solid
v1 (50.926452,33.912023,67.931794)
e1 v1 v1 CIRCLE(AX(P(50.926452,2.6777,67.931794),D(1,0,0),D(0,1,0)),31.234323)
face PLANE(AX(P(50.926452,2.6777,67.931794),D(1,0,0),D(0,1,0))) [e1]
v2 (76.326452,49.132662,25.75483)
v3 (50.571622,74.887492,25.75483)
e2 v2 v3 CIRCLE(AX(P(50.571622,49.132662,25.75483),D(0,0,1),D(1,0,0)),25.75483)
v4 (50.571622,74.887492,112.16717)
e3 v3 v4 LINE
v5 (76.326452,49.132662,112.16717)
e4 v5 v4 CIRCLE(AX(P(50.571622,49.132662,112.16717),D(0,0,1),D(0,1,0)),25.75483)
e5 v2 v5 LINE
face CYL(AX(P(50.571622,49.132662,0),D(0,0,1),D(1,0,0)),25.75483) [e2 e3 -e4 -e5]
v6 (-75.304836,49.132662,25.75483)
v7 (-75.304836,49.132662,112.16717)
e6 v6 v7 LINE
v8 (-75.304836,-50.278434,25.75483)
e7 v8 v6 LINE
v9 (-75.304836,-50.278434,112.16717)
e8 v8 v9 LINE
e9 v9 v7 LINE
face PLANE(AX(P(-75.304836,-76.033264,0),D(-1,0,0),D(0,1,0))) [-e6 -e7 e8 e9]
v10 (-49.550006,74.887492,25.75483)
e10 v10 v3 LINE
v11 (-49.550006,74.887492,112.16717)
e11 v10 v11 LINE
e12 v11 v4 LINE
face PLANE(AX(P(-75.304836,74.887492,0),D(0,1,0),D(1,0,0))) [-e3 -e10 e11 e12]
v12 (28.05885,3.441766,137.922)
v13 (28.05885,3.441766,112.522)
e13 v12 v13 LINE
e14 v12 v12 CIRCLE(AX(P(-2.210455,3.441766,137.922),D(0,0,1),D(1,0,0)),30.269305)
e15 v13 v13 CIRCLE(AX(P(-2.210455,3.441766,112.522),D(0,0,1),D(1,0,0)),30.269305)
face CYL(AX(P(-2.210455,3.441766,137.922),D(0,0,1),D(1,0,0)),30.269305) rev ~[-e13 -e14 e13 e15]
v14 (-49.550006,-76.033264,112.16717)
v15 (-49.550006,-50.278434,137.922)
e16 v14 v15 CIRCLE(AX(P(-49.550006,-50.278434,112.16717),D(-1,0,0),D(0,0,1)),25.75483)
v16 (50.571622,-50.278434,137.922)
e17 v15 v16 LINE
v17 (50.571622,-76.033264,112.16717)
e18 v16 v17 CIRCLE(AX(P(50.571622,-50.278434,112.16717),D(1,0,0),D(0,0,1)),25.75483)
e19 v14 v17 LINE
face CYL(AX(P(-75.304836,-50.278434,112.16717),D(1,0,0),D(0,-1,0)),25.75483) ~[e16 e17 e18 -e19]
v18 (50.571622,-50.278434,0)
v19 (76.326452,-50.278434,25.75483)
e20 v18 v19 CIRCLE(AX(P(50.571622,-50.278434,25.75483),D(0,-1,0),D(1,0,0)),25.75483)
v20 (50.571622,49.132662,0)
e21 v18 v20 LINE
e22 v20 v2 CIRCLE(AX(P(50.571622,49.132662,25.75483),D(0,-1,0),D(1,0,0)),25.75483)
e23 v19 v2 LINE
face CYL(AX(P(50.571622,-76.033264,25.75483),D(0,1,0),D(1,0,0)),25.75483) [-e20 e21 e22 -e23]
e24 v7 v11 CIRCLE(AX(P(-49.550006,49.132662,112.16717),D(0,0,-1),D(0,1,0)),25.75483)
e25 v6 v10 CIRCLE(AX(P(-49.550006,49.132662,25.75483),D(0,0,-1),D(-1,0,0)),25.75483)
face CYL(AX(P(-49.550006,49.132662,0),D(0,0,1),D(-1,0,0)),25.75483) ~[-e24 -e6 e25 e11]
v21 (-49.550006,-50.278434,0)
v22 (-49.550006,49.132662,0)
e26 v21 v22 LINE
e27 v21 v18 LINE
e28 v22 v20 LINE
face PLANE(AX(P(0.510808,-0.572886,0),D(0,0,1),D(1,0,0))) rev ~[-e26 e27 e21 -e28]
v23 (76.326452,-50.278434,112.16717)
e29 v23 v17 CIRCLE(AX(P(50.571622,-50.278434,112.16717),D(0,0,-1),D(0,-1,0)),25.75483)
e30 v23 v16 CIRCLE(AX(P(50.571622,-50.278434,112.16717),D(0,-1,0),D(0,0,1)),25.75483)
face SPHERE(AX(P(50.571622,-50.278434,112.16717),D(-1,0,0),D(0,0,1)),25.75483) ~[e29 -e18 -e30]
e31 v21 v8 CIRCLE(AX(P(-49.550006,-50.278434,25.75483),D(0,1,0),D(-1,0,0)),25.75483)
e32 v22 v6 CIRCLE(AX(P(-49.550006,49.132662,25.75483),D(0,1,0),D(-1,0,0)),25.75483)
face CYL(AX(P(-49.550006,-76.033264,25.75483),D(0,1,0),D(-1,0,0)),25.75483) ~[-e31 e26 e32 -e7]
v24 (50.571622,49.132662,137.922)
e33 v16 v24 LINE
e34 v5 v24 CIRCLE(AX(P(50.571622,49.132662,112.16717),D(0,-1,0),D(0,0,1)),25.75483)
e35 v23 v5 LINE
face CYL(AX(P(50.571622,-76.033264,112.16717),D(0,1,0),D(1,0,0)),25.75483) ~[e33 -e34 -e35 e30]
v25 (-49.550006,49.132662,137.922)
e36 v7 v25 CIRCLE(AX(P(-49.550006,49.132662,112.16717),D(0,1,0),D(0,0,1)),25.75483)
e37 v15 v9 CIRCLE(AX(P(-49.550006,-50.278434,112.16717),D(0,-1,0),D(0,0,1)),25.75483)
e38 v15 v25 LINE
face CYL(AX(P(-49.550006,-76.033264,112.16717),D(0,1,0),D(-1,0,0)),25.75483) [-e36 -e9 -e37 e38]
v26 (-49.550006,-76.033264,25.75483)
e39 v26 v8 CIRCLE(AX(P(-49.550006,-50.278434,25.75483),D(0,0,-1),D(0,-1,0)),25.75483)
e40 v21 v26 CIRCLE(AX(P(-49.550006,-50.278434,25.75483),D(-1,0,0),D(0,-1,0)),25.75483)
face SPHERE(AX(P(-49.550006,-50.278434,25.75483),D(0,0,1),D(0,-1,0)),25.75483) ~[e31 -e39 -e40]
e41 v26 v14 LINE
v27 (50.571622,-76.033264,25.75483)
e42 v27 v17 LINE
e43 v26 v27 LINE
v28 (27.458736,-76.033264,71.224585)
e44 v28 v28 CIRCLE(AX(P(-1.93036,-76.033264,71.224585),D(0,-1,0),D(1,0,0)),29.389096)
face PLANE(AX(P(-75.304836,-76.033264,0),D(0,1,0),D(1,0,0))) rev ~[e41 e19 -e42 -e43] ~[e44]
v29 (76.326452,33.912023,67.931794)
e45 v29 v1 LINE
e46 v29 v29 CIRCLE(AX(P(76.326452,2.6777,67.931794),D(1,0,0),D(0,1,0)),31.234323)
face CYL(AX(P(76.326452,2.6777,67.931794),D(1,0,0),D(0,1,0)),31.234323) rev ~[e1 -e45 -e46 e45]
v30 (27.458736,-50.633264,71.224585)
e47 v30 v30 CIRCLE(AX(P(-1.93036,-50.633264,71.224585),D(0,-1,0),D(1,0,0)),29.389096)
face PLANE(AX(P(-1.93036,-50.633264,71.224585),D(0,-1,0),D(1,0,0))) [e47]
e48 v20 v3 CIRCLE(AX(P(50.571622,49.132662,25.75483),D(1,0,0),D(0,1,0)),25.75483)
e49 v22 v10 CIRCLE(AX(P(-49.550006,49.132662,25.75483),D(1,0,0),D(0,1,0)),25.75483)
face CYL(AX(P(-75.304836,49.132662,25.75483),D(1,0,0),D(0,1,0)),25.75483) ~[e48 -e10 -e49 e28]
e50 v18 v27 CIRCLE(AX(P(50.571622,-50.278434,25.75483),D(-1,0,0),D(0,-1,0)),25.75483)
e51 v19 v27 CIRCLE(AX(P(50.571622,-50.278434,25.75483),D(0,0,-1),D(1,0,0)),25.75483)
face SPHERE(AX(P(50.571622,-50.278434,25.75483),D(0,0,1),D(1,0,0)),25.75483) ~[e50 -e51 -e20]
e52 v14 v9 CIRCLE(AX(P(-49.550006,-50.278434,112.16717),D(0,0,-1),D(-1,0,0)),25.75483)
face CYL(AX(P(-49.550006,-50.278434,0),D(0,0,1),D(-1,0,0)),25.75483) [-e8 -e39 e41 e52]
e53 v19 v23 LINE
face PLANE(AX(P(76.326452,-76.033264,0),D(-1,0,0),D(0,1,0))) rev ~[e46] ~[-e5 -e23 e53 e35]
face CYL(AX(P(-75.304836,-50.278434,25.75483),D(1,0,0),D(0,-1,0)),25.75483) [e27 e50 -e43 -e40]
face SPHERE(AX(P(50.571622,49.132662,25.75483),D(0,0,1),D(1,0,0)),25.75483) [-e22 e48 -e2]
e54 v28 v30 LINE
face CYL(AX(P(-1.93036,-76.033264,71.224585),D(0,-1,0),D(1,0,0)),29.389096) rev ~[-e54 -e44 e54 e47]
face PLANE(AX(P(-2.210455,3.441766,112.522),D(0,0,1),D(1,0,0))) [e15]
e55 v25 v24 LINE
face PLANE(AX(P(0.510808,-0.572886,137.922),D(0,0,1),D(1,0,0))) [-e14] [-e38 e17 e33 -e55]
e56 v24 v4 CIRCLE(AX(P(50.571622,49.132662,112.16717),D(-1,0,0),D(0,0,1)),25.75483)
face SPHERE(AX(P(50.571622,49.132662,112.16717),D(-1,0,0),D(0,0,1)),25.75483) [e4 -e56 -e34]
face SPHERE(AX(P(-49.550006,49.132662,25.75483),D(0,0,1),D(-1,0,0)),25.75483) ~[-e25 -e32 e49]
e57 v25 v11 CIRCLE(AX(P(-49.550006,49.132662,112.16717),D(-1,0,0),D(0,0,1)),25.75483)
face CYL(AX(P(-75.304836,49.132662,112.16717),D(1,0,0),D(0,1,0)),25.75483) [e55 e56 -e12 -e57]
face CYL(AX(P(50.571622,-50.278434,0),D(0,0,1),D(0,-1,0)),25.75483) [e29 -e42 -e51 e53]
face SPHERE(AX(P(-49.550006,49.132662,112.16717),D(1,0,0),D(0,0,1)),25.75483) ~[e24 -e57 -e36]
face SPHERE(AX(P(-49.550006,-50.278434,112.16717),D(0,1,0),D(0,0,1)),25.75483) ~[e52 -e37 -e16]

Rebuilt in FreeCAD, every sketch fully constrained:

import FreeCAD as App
import Part
import Sketcher

V = App.Vector
Q = App.Units.Quantity

doc = App.newDocument("Part")
body = doc.addObject("PartDesign::Body", "Body")

# Sketch on XY plane
sketch1 = body.newObject("Sketcher::SketchObject", "Sketch")
sketch1.AttachmentSupport = (doc.getObject("XY_Plane"), [""])
sketch1.MapMode = "FlatFace"
sketch1.addGeometry([
    Part.LineSegment(V(-75, 75, 0), V(-75, -76, 0)),
    Part.LineSegment(V(-75, -76, 0), V(76, -76, 0)),
    Part.LineSegment(V(76, -76, 0), V(76, 75, 0)),
    Part.LineSegment(V(76, 75, 0), V(-75, 75, 0)),
], False)
sketch1.addConstraint([
    Sketcher.Constraint("Coincident", 0, 2, 1, 1),
    Sketcher.Constraint("Coincident", 1, 2, 2, 1),
    Sketcher.Constraint("Coincident", 2, 2, 3, 1),
    Sketcher.Constraint("Coincident", 3, 2, 0, 1),
    Sketcher.Constraint("Vertical", 0),
    Sketcher.Constraint("Horizontal", 1),
    Sketcher.Constraint("Vertical", 2),
    Sketcher.Constraint("Horizontal", 3),
    Sketcher.Constraint("DistanceX", 1, 1, 1, 2, 151.631288),
    Sketcher.Constraint("DistanceY", 0, 2, 0, 1, 150.920756),
    Sketcher.Constraint("DistanceY", -1, 1, 2, 2, 74.887492),
    Sketcher.Constraint("DistanceX", 0, 2, -1, 1, 75.304836),
])
pad1 = body.newObject("PartDesign::Pad", "Pad")
pad1.Profile = sketch1
pad1.Length = Q("5.43 in")
doc.recompute()

fillet = body.newObject("PartDesign::Fillet", "Fillet")
fillet.Base = (pad1, ["Edge1"])
fillet.UseAllEdges = True
fillet.Radius = 25.75483

# Sketch on XY plane
sketch2 = body.newObject("Sketcher::SketchObject", "Sketch001")
sketch2.AttachmentSupport = (doc.getObject("XY_Plane"), [""])
sketch2.MapMode = "FlatFace"
sketch2.AttachmentOffset = App.Placement(V(0, 0, 5.43 * 25.4), App.Rotation())
sketch2.addGeometry(Part.Circle(V(-2, 3, 0), V(0, 0, 1), 30), False)
sketch2.addConstraint([
    Sketcher.Constraint("Diameter", 0, 60.53861),
    Sketcher.Constraint("DistanceX", 0, 3, -1, 1, 2.210455),
    Sketcher.Constraint("DistanceY", -1, 1, 0, 3, 3.441766),
])
pocket1 = body.newObject("PartDesign::Pocket", "Pocket")
pocket1.Profile = sketch2
pocket1.Length = Q("1 in")

# Sketch on XZ plane
sketch3 = body.newObject("Sketcher::SketchObject", "Sketch002")
sketch3.AttachmentSupport = (doc.getObject("XZ_Plane"), [""])
sketch3.MapMode = "FlatFace"
sketch3.AttachmentOffset = App.Placement(V(0, 0, 76.033264), App.Rotation())
sketch3.addGeometry(Part.Circle(V(-2, 71, 0), V(0, 0, 1), 29), False)
sketch3.addConstraint([
    Sketcher.Constraint("Diameter", 0, 58.778192),
    Sketcher.Constraint("DistanceX", 0, 3, -1, 1, 1.93036),
    Sketcher.Constraint("DistanceY", -1, 1, 0, 3, 71.224585),
])
pocket2 = body.newObject("PartDesign::Pocket", "Pocket001")
pocket2.Profile = sketch3
pocket2.Length = Q("1 in")

# Sketch on YZ plane
sketch4 = body.newObject("Sketcher::SketchObject", "Sketch003")
sketch4.AttachmentSupport = (doc.getObject("YZ_Plane"), [""])
sketch4.MapMode = "FlatFace"
sketch4.AttachmentOffset = App.Placement(V(0, 0, 76.326452), App.Rotation())
sketch4.addGeometry(Part.Circle(V(3, 68, 0), V(0, 0, 1), 31), False)
sketch4.addConstraint([
    Sketcher.Constraint("Diameter", 0, 62.468646),
    Sketcher.Constraint("DistanceX", -1, 1, 0, 3, 2.6777),
    Sketcher.Constraint("DistanceY", -1, 1, 0, 3, 67.931794),
])
pocket3 = body.newObject("PartDesign::Pocket", "Pocket002")
pocket3.Profile = sketch4
pocket3.Length = Q("1 in")

doc.recompute()
